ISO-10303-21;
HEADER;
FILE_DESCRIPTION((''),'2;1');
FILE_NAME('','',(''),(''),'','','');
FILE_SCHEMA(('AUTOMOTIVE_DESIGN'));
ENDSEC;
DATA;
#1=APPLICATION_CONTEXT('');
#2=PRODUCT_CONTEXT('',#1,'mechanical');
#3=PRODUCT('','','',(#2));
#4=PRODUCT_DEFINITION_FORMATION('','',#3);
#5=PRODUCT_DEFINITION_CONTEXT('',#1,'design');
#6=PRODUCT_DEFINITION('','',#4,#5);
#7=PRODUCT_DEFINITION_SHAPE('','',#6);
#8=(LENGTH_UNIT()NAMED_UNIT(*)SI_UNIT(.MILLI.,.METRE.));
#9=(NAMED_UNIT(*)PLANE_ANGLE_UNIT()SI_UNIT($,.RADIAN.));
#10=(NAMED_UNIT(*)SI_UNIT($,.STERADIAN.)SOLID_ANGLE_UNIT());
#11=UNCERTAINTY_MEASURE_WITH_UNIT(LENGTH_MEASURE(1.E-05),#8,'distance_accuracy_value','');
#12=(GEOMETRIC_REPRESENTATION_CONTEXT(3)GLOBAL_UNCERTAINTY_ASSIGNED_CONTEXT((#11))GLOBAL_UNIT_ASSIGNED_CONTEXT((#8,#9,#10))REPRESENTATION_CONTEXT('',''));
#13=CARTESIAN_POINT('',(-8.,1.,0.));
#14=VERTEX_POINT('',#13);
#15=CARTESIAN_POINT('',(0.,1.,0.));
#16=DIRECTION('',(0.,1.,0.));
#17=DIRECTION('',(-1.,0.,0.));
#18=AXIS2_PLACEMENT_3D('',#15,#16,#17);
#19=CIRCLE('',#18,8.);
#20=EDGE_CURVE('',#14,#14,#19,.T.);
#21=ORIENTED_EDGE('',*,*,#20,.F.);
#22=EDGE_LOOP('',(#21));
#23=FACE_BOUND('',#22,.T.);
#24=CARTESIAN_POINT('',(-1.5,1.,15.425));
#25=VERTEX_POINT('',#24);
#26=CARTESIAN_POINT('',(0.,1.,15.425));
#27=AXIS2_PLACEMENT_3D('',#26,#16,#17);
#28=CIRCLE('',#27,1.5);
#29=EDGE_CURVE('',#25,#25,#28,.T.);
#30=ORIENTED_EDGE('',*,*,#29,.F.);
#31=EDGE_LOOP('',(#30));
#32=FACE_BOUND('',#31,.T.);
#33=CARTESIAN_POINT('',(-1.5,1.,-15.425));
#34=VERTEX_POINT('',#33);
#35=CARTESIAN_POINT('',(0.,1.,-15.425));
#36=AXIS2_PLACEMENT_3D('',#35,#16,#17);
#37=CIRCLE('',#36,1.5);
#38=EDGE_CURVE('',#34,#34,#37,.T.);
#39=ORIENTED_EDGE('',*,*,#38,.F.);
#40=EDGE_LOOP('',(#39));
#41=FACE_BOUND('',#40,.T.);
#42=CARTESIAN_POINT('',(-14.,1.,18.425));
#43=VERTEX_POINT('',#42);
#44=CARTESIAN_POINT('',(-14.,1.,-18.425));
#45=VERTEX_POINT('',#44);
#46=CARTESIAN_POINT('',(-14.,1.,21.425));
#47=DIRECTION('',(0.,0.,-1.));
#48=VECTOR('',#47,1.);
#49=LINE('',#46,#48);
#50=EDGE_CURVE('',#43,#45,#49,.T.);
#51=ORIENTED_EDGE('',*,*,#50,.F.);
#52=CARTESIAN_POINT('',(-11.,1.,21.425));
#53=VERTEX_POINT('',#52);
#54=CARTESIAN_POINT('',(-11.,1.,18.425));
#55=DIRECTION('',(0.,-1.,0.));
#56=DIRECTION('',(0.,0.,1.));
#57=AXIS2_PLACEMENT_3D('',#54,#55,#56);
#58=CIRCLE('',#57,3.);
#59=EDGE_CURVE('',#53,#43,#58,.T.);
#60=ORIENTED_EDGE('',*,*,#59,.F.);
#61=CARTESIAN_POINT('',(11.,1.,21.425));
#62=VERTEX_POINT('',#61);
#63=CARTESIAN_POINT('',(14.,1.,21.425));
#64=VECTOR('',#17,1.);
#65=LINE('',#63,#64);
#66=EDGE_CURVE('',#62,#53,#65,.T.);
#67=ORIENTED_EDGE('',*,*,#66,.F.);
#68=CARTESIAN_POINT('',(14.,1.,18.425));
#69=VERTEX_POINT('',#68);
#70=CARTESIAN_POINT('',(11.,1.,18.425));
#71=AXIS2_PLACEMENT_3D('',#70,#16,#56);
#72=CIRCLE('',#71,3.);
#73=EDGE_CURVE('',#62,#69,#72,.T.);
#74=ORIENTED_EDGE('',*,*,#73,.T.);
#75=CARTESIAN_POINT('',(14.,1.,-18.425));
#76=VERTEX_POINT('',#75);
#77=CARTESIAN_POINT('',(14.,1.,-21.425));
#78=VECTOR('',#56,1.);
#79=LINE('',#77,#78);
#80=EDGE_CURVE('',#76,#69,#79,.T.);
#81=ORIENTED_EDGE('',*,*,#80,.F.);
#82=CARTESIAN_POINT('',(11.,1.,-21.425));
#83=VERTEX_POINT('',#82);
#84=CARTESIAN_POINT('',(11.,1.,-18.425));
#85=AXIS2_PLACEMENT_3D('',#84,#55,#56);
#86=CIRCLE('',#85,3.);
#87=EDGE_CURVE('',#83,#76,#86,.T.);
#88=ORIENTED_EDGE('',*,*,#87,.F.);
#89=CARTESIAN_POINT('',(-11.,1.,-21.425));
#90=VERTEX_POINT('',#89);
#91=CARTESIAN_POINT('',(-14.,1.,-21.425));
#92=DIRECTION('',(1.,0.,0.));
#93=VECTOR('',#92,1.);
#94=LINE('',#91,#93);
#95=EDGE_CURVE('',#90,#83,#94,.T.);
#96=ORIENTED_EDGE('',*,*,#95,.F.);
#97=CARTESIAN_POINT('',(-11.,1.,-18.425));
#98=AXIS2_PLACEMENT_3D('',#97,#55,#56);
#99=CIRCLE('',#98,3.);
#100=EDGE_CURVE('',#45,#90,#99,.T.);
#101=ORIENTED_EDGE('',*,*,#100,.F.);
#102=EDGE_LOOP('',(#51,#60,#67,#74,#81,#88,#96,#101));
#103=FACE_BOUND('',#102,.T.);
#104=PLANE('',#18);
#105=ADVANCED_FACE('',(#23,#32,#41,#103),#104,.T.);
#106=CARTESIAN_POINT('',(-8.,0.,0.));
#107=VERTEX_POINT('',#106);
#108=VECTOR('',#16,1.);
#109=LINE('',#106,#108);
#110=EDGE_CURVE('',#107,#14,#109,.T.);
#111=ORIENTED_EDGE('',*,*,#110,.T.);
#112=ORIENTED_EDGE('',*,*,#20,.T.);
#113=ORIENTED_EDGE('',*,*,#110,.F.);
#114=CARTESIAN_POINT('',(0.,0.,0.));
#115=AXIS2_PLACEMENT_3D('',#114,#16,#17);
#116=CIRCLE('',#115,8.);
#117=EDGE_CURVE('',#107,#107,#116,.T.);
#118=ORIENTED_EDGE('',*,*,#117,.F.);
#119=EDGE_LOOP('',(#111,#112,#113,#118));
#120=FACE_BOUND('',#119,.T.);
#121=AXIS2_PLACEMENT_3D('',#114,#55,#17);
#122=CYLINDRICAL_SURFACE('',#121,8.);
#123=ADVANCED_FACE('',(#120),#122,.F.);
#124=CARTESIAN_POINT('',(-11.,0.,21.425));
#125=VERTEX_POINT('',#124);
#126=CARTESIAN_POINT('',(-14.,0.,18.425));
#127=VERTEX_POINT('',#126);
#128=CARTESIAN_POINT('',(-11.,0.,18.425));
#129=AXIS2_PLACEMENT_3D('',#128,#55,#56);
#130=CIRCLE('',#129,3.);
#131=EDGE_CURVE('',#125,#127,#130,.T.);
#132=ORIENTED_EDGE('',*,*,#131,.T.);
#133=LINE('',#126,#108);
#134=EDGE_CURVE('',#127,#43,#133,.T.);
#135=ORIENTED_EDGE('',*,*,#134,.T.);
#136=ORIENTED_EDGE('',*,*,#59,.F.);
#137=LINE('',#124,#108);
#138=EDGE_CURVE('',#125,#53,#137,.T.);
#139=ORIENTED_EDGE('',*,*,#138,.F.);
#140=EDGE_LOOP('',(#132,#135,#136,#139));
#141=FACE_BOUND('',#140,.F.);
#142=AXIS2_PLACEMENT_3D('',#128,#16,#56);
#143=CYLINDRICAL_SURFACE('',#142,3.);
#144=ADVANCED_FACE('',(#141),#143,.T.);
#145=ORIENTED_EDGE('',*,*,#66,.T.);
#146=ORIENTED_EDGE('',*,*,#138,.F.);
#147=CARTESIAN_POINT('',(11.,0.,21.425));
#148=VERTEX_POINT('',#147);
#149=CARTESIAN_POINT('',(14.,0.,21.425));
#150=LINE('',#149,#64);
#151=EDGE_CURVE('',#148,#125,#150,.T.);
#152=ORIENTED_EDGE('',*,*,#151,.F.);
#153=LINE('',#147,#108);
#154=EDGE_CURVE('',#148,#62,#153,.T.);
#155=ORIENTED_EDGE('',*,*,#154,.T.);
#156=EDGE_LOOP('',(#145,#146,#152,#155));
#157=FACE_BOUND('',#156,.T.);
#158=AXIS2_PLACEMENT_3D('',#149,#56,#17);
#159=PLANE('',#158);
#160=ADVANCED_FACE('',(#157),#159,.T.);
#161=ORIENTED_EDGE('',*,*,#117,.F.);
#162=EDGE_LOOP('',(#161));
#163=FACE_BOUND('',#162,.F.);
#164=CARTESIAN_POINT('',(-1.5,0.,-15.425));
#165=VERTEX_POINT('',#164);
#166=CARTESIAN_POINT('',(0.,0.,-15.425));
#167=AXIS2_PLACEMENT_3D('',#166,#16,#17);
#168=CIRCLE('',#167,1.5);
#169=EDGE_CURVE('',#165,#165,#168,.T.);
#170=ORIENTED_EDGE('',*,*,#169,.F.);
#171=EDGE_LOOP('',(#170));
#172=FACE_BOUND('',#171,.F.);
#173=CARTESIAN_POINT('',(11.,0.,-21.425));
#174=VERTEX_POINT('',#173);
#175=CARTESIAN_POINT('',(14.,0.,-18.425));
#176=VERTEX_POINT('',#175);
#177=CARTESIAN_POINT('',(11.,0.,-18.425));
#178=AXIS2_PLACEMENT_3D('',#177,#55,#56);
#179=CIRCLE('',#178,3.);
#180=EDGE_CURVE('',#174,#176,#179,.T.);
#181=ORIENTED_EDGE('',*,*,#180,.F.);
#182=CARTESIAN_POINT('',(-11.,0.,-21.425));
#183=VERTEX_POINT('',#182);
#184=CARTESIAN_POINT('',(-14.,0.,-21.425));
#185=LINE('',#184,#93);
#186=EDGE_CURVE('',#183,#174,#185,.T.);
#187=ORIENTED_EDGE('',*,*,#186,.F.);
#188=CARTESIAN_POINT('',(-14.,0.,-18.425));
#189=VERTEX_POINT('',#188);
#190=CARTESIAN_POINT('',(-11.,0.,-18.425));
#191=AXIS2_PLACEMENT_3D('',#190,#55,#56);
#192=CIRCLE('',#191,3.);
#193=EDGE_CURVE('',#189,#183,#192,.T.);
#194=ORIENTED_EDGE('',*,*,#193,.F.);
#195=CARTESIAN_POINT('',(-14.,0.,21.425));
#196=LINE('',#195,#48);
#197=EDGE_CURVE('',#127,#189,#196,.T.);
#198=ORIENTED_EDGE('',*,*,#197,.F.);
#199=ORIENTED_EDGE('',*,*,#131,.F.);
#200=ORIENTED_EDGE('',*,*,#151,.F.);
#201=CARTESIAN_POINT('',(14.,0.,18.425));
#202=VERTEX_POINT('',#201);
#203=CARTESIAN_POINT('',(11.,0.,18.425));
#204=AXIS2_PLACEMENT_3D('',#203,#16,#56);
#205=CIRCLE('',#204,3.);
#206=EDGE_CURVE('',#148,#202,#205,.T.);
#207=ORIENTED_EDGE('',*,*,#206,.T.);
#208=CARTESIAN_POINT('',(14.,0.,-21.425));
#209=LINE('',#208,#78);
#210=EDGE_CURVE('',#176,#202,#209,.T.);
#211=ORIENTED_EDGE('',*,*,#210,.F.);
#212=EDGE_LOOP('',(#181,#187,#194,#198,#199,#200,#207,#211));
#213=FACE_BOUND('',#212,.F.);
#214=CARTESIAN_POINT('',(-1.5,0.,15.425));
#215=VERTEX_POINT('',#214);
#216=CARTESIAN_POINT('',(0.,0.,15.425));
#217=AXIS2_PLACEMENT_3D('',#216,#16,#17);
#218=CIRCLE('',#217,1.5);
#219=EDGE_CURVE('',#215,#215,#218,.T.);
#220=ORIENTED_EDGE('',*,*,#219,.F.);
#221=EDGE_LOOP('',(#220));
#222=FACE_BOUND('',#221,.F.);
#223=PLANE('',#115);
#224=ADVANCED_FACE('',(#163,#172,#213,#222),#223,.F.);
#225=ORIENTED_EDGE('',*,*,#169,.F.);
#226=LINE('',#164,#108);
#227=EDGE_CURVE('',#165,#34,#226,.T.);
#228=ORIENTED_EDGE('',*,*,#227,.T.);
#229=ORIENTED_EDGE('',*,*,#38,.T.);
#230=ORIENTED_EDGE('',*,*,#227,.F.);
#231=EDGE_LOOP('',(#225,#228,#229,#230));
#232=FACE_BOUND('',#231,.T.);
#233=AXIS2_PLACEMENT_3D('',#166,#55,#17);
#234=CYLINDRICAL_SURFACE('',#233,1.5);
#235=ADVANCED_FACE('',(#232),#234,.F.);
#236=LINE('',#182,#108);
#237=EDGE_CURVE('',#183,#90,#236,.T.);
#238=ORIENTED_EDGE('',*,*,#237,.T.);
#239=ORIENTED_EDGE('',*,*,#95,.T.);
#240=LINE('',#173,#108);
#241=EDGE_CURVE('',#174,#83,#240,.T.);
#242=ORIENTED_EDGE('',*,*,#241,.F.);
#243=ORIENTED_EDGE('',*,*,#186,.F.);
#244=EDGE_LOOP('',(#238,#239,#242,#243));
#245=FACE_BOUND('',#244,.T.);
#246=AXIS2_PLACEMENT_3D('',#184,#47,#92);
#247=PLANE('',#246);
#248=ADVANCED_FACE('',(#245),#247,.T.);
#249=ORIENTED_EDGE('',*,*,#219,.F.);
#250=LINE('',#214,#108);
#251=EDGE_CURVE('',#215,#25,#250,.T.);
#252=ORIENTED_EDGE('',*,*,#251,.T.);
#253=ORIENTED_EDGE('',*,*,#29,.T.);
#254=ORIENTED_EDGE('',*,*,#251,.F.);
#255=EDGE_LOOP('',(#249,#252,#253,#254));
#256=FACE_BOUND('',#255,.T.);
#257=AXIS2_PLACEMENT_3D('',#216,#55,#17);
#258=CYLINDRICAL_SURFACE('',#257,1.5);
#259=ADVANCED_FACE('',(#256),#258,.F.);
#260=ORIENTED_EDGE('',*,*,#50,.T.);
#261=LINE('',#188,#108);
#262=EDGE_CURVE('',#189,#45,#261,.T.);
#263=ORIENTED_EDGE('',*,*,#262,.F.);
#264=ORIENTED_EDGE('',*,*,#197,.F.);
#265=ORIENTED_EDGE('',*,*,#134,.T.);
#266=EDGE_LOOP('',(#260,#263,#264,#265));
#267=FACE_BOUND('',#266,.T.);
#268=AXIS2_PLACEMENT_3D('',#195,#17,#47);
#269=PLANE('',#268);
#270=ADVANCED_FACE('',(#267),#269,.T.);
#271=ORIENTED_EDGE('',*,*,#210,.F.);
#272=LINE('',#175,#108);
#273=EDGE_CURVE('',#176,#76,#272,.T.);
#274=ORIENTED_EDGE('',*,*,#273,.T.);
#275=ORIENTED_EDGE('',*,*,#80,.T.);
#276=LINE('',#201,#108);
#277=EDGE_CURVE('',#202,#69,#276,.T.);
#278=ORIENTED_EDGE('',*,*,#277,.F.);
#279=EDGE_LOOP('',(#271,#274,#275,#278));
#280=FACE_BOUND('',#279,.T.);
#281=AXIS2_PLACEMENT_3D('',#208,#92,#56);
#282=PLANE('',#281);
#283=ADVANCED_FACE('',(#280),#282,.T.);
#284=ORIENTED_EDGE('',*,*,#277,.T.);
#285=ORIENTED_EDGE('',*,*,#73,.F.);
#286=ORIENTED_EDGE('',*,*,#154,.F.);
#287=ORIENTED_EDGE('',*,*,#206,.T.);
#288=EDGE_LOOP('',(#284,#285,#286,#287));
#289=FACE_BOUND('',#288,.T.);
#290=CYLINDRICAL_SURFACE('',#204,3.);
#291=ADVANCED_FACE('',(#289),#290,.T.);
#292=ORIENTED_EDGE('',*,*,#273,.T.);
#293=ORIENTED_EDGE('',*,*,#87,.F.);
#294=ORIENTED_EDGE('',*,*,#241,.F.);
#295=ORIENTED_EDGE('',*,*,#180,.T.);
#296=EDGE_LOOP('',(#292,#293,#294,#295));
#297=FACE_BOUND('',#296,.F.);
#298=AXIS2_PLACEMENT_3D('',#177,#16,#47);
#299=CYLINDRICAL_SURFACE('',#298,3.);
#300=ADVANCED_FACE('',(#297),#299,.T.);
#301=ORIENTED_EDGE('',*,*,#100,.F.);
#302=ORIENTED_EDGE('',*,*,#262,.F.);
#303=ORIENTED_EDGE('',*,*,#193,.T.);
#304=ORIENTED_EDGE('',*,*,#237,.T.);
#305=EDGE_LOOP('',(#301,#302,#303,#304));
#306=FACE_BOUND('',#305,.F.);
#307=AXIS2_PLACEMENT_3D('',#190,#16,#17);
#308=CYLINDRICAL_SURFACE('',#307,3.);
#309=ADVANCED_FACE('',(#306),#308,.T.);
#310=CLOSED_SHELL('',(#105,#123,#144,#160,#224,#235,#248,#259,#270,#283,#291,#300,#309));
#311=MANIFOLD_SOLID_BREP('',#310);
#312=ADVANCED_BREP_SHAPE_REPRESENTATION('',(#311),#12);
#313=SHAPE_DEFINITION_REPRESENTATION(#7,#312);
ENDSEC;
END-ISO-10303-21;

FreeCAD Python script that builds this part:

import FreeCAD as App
import Part
import Sketcher
Q = App.Units.Quantity


def edges_at(feature, points):
    """Names of the edges that pass closest to the given points."""
    edges = feature.Shape.Edges
    near = lambda p: min(range(len(edges)), key=lambda i: edges[i].distToShape(Part.Vertex(*p))[0])
    return sorted({f"Edge{near(p) + 1}" for p in points})


def add_polygon(sketch, points):
    """Adds a closed chain of lines whose ends are joined by coincident constraints."""
    first, n = sketch.GeometryCount, len(points)
    for a, b in zip(points, points[1:] + points[:1]):
        sketch.addGeometry(Part.LineSegment(App.Vector(*a, 0), App.Vector(*b, 0)), False)
    for i in range(n):
        sketch.addConstraint(Sketcher.Constraint("Coincident", first + i, 2, first + (i + 1) % n, 1))

doc = App.newDocument("Part")
params = doc.addObject("Spreadsheet::Sheet", "Params")
for row, (alias, value) in enumerate([
    ("sketch1_diameter", "3 mm"),
    ("sketch1_diameter2", "16 mm"),
    ("sketch1_width", "28 mm"),
    ("sketch1_height", "42.85 mm"),
    ("pad1_length", "1 mm"),
    ("fillet_radius", "3 mm"),
], start=1):
    params.set(f"A{row}", alias)
    params.set(f"B{row}", "=" + value)
    params.setAlias(f"B{row}", alias)

body = doc.addObject("PartDesign::Body", "Body")

sketch1 = body.newObject("Sketcher::SketchObject", "Sketch")
sketch1.AttachmentSupport = (doc.getObject("XZ_Plane"), [""])
sketch1.MapMode = "FlatFace"
add_polygon(sketch1, [(-14, 21.4), (14, 21.4), (14, -21.4), (-14, -21.4)])
sketch1.addGeometry(Part.Circle(App.Vector(0, -15.4, 0), App.Vector(0, 0, 1), 1.5), False)
sketch1.addGeometry(Part.Circle(App.Vector(0, 0, 0), App.Vector(0, 0, 1), 8), False)
sketch1.addGeometry(Part.Circle(App.Vector(0, 15.4, 0), App.Vector(0, 0, 1), 1.5), False)
sketch1.addConstraint(Sketcher.Constraint("Horizontal", 0))
sketch1.addConstraint(Sketcher.Constraint("Vertical", 1))
sketch1.addConstraint(Sketcher.Constraint("Horizontal", 2))
sketch1.addConstraint(Sketcher.Constraint("Vertical", 3))
sketch1.addConstraint(Sketcher.Constraint("Coincident", 5, 3, -1, 1))
sketch1.addConstraint(Sketcher.Constraint("Equal", 4, 6))
sketch1.addConstraint(Sketcher.Constraint("Symmetric", 4, 3, 6, 3, -1, 1))
sketch1.addConstraint(Sketcher.Constraint("Symmetric", 0, 2, 2, 2, -1, 1))
sketch1.addConstraint(Sketcher.Constraint("PointOnObject", 4, 3, -2))
sketch1.addConstraint(Sketcher.Constraint("Diameter", 4, Q("3 mm")))
sketch1.addConstraint(Sketcher.Constraint("Diameter", 5, Q("16 mm")))
sketch1.addConstraint(Sketcher.Constraint("DistanceX", 0, 1, 0, 2, Q("28 mm")))
sketch1.addConstraint(Sketcher.Constraint("DistanceY", 6, 3, 0, 2, Q("6 mm")))
sketch1.addConstraint(Sketcher.Constraint("DistanceY", 1, 2, 1, 1, Q("42.85 mm")))
sketch1.setExpression("Constraints[13]", "Params.sketch1_diameter")
sketch1.setExpression("Constraints[14]", "Params.sketch1_diameter2")
sketch1.setExpression("Constraints[15]", "Params.sketch1_width")
sketch1.setExpression("Constraints[17]", "Params.sketch1_height")
pad1 = body.newObject("PartDesign::Pad", "Pad")
pad1.Profile = sketch1
pad1.setExpression("Length", "Params.pad1_length")
pad1.Reversed = True
doc.recompute()

fillet = body.newObject("PartDesign::Fillet", "Fillet")
fillet.Base = (pad1, edges_at(pad1, [
    (14, 0.5, 21.425),
    (-14, 0.5, 21.425),
    (14, 0.5, -21.425),
    (-14, 0.5, -21.425),
]))
fillet.setExpression("Radius", "Params.fillet_radius")

doc.recompute()
